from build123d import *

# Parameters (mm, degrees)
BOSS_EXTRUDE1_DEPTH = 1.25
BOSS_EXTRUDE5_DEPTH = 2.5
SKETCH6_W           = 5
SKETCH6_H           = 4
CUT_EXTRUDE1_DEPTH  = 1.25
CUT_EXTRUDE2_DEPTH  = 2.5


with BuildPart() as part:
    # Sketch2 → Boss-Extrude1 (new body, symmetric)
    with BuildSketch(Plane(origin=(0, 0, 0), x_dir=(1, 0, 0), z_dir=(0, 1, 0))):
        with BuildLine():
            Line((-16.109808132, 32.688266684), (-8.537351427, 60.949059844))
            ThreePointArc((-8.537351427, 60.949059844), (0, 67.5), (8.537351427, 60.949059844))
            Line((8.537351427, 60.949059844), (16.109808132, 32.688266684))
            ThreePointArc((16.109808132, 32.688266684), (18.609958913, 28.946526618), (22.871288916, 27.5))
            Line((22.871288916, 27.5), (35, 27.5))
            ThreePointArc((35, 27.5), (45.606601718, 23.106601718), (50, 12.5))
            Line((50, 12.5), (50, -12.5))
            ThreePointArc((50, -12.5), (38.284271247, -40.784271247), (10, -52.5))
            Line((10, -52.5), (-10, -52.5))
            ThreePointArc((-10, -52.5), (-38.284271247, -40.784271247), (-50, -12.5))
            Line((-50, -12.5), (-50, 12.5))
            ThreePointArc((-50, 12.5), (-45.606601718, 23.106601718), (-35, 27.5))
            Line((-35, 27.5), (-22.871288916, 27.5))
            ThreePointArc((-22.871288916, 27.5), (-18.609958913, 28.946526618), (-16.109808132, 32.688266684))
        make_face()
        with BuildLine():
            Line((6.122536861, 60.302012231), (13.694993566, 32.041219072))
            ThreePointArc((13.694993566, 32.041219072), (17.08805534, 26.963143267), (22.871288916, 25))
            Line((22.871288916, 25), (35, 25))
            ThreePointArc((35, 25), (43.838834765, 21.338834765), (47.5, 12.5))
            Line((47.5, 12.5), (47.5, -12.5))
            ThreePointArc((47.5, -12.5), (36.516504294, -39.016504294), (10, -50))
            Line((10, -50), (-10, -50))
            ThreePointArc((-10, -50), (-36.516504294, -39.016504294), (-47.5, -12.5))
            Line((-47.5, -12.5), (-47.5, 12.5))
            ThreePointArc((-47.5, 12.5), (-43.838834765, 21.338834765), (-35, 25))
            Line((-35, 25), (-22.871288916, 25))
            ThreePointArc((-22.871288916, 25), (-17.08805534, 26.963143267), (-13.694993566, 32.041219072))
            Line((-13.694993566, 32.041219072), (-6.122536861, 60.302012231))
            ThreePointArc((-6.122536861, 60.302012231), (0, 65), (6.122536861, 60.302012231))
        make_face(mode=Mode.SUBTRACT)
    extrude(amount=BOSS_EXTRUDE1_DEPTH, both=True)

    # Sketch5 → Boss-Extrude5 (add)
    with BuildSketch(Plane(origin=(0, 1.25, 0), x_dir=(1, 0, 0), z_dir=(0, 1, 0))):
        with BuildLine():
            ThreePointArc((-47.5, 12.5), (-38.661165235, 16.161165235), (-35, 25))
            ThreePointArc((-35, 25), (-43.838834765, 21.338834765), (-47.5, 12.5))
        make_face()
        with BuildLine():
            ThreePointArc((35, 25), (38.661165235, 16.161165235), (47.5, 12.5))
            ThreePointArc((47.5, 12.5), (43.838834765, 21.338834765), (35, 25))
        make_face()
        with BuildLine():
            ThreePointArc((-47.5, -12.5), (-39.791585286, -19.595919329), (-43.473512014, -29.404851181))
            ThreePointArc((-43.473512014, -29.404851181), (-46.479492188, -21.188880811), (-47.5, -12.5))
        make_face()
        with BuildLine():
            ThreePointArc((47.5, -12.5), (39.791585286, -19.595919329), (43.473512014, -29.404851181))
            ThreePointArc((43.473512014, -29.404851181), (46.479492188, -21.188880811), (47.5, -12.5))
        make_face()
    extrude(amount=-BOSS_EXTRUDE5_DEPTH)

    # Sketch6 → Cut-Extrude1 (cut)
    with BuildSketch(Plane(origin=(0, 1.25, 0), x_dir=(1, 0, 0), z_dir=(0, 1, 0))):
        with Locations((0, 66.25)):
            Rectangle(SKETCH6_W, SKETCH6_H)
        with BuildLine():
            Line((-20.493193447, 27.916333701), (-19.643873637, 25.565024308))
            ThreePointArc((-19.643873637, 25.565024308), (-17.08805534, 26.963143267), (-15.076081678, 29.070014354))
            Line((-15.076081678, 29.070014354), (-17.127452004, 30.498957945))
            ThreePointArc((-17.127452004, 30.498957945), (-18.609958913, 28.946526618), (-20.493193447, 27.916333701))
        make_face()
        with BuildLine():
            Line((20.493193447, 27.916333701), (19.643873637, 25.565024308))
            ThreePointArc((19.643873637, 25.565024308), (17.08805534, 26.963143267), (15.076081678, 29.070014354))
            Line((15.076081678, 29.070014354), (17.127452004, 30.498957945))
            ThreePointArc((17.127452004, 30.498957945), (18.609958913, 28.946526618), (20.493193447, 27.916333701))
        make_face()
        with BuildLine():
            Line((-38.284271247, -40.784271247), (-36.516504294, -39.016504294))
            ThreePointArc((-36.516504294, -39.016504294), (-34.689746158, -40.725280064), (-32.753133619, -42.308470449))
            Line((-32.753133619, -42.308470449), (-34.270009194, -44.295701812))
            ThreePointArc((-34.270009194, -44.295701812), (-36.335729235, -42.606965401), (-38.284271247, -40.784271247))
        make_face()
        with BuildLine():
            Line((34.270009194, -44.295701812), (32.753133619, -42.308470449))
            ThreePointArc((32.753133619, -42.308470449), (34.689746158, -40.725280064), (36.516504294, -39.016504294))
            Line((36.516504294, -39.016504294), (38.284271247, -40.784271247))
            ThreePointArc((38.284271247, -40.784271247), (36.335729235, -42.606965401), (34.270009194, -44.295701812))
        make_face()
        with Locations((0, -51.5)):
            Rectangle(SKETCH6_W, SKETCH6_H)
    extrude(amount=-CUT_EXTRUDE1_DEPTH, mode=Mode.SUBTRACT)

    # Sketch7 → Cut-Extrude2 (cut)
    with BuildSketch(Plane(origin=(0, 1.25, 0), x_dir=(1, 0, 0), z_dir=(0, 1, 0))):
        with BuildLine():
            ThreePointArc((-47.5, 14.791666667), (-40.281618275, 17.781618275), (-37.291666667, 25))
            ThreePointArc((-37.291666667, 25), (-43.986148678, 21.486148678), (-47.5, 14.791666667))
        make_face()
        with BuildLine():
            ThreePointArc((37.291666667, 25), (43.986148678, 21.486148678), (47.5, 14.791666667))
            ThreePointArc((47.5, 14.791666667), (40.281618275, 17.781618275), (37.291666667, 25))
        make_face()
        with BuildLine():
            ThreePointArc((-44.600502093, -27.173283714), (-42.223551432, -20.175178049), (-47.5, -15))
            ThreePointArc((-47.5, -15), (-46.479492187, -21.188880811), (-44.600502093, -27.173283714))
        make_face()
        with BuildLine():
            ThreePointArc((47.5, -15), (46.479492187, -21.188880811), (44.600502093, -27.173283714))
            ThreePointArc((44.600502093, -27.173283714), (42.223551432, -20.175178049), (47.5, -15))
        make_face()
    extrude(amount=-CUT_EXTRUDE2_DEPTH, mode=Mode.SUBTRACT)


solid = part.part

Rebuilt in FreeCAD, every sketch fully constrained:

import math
import FreeCAD as App
import Part
import Sketcher

V = App.Vector
Q = App.Units.Quantity

doc = App.newDocument("Part")
body = doc.addObject("PartDesign::Body", "Body")

# Sketch on XZ plane
sketch1 = body.newObject("Sketcher::SketchObject", "Sketch")
sketch1.AttachmentSupport = (doc.getObject("XZ_Plane"), [""])
sketch1.MapMode = "FlatFace"
sketch1.addGeometry([
    Part.LineSegment(V(-8.537351, -60.94906, 0), V(-16.109808, -32.688267, 0)),  # 0
    Part.ArcOfCircle(Part.Circle(V(-22.871289, -34.5, 0), V(0, 0, 1), 7), math.radians(15), math.radians(90)),  # 1
    Part.LineSegment(V(-22.871289, -27.5, 0), V(-35, -27.5, 0)),  # 2
    Part.ArcOfCircle(Part.Circle(V(-35, -12.5, 0), V(0, 0, 1), 15), math.radians(180), math.radians(270)),  # 3
    Part.LineSegment(V(-50, -12.5, 0), V(-50, 12.5, 0)),  # 4
    Part.ArcOfCircle(Part.Circle(V(-10, 12.5, 0), V(0, 0, 1), 40), math.radians(90), math.radians(180)),  # 5
    Part.LineSegment(V(-10, 52.5, 0), V(10, 52.5, 0)),  # 6
    Part.ArcOfCircle(Part.Circle(V(10, 12.5, 0), V(0, 0, 1), 40), math.radians(0), math.radians(90)),  # 7
    Part.LineSegment(V(50, 12.5, 0), V(50, -12.5, 0)),  # 8
    Part.ArcOfCircle(Part.Circle(V(35, -12.5, 0), V(0, 0, 1), 15), math.radians(-90), math.radians(0)),  # 9
    Part.LineSegment(V(35, -27.5, 0), V(22.871289, -27.5, 0)),  # 10
    Part.ArcOfCircle(Part.Circle(V(22.871289, -34.5, 0), V(0, 0, 1), 7), math.radians(90), math.radians(165)),  # 11
    Part.LineSegment(V(16.109808, -32.688267, 0), V(8.537351, -60.94906, 0)),  # 12
    Part.ArcOfCircle(Part.Circle(V(0, -58.661483, 0), V(0, 0, 1), 8.838517), math.radians(-165), math.radians(-15)),  # 13
    Part.LineSegment(V(6.122537, -60.302012, 0), V(13.694994, -32.041219, 0)),  # 14
    Part.ArcOfCircle(Part.Circle(V(22.871289, -34.5, 0), V(0, 0, 1), 9.5), math.radians(90), math.radians(165)),  # 15
    Part.LineSegment(V(22.871289, -25, 0), V(35, -25, 0)),  # 16
    Part.ArcOfCircle(Part.Circle(V(35, -12.5, 0), V(0, 0, 1), 12.5), math.radians(-90), math.radians(0)),  # 17
    Part.LineSegment(V(47.5, -12.5, 0), V(47.5, 12.5, 0)),  # 18
    Part.ArcOfCircle(Part.Circle(V(10, 12.5, 0), V(0, 0, 1), 37.5), math.radians(0), math.radians(90)),  # 19
    Part.LineSegment(V(10, 50, 0), V(-10, 50, 0)),  # 20
    Part.ArcOfCircle(Part.Circle(V(-10, 12.5, 0), V(0, 0, 1), 37.5), math.radians(90), math.radians(180)),  # 21
    Part.LineSegment(V(-47.5, 12.5, 0), V(-47.5, -12.5, 0)),  # 22
    Part.ArcOfCircle(Part.Circle(V(-35, -12.5, 0), V(0, 0, 1), 12.5), math.radians(180), math.radians(270)),  # 23
    Part.LineSegment(V(-35, -25, 0), V(-22.871289, -25, 0)),  # 24
    Part.ArcOfCircle(Part.Circle(V(-22.871289, -34.5, 0), V(0, 0, 1), 9.5), math.radians(15), math.radians(90)),  # 25
    Part.LineSegment(V(-13.694994, -32.041219, 0), V(-6.122537, -60.302012, 0)),  # 26
    Part.ArcOfCircle(Part.Circle(V(0, -58.661483, 0), V(0, 0, 1), 6.338517), math.radians(-165), math.radians(-15)),  # 27
], False)
sketch1.addConstraint([
    Sketcher.Constraint("Tangent", 0, 2, 1, 1),
    Sketcher.Constraint("Tangent", 1, 2, 2, 1),
    Sketcher.Constraint("Tangent", 2, 2, 3, 2),
    Sketcher.Constraint("Tangent", 3, 1, 4, 1),
    Sketcher.Constraint("Tangent", 4, 2, 5, 2),
    Sketcher.Constraint("Tangent", 5, 1, 6, 1),
    Sketcher.Constraint("Tangent", 6, 2, 7, 2),
    Sketcher.Constraint("Tangent", 7, 1, 8, 1),
    Sketcher.Constraint("Tangent", 8, 2, 9, 2),
    Sketcher.Constraint("Tangent", 9, 1, 10, 1),
    Sketcher.Constraint("Tangent", 10, 2, 11, 1),
    Sketcher.Constraint("Tangent", 11, 2, 12, 1),
    Sketcher.Constraint("Tangent", 12, 2, 13, 2),
    Sketcher.Constraint("Tangent", 13, 1, 0, 1),
    Sketcher.Constraint("Tangent", 14, 2, 15, 2),
    Sketcher.Constraint("Tangent", 15, 1, 16, 1),
    Sketcher.Constraint("Tangent", 16, 2, 17, 1),
    Sketcher.Constraint("Tangent", 17, 2, 18, 1),
    Sketcher.Constraint("Tangent", 18, 2, 19, 1),
    Sketcher.Constraint("Tangent", 19, 2, 20, 1),
    Sketcher.Constraint("Tangent", 20, 2, 21, 1),
    Sketcher.Constraint("Tangent", 21, 2, 22, 1),
    Sketcher.Constraint("Tangent", 22, 2, 23, 1),
    Sketcher.Constraint("Tangent", 23, 2, 24, 1),
    Sketcher.Constraint("Tangent", 24, 2, 25, 2),
    Sketcher.Constraint("Tangent", 25, 1, 26, 1),
    Sketcher.Constraint("Tangent", 26, 2, 27, 1),
    Sketcher.Constraint("Tangent", 27, 2, 14, 1),
    Sketcher.Constraint("Horizontal", 2),
    Sketcher.Constraint("Vertical", 4),
    Sketcher.Constraint("Horizontal", 6),
    Sketcher.Constraint("Vertical", 8),
    Sketcher.Constraint("Horizontal", 10),
    Sketcher.Constraint("Horizontal", 16),
    Sketcher.Constraint("Vertical", 18),
    Sketcher.Constraint("Horizontal", 20),
    Sketcher.Constraint("Vertical", 22),
    Sketcher.Constraint("Horizontal", 24),
    Sketcher.Constraint("Coincident", 15, 3, 11, 3),
    Sketcher.Constraint("Coincident", 17, 3, 9, 3),
    Sketcher.Constraint("Coincident", 19, 3, 7, 3),
    Sketcher.Constraint("Coincident", 21, 3, 5, 3),
    Sketcher.Constraint("Coincident", 23, 3, 3, 3),
    Sketcher.Constraint("Coincident", 25, 3, 1, 3),
    Sketcher.Constraint("Coincident", 27, 3, 13, 3),
    Sketcher.Constraint("Equal", 5, 7),
    Sketcher.Constraint("Equal", 3, 9),
    Sketcher.Constraint("Equal", 1, 11),
    Sketcher.Constraint("Symmetric", 3, 1, 7, 1, -1, 1),
    Sketcher.Constraint("Symmetric", 1, 3, 11, 3, -2),
    Sketcher.Constraint("PointOnObject", 13, 3, -2),
    Sketcher.Constraint("Parallel", 12, 14),
    Sketcher.Constraint("Radius", 1, 7.0),
    Sketcher.Constraint("Radius", 3, 15.0),
    Sketcher.Constraint("Radius", 5, 40.0),
    Sketcher.Constraint("Radius", 15, 9.5),
    Sketcher.Constraint("DistanceX", 6, 1, 6, 2, 20.0),
    Sketcher.Constraint("DistanceY", 4, 1, 4, 2, 25.0),
    Sketcher.Constraint("Angle", 0, Q("105 deg")),
    Sketcher.Constraint("Radius", 13, 8.838517),
    Sketcher.Constraint("DistanceX", 2, 2, 2, 1, 12.128711),
])
pad1 = body.newObject("PartDesign::Pad", "Pad")
pad1.Profile = sketch1
pad1.Length = 2.5
pad1.Midplane = True

# Sketch on XZ plane
sketch2 = body.newObject("Sketcher::SketchObject", "Sketch001")
sketch2.AttachmentSupport = (doc.getObject("XZ_Plane"), [""])
sketch2.MapMode = "FlatFace"
sketch2.AttachmentOffset = App.Placement(V(0, 0, -1.25), App.Rotation())
sketch2.addGeometry([
    Part.ArcOfCircle(Part.Circle(V(-47.5, -25, 0), V(0, 0, 1), 12.5), math.radians(0), math.radians(90)),  # 0
    Part.ArcOfCircle(Part.Circle(V(-35, -12.5, 0), V(0, 0, 1), 12.5), math.radians(180), math.radians(270)),  # 1
    Part.ArcOfCircle(Part.Circle(V(47.5, -25, 0), V(0, 0, 1), 12.5), math.radians(90), math.radians(180)),  # 2
    Part.ArcOfCircle(Part.Circle(V(35, -12.5, 0), V(0, 0, 1), 12.5), math.radians(-90), math.radians(0)),  # 3
    Part.ArcOfCircle(Part.Circle(V(-48.911458, 21.76814, 0), V(0, 0, 1), 9.375), math.radians(-81.340877), math.radians(54.546109)),  # 4
    Part.ArcOfCircle(Part.Circle(V(-10, 12.5, 0), V(0, 0, 1), 37.5), math.radians(153.205232), math.radians(180)),  # 5
    Part.ArcOfCircle(Part.Circle(V(48.911458, 21.76814, 0), V(0, 0, 1), 9.375), math.radians(125.453891), math.radians(261.340877)),  # 6
    Part.ArcOfCircle(Part.Circle(V(10, 12.5, 0), V(0, 0, 1), 37.5), math.radians(0), math.radians(26.794768)),  # 7
], False)
sketch2.addConstraint([
    Sketcher.Constraint("Coincident", 0, 1, 1, 2),
    Sketcher.Constraint("Coincident", 1, 1, 0, 2),
    Sketcher.Constraint("Coincident", 2, 1, 3, 2),
    Sketcher.Constraint("Coincident", 3, 1, 2, 2),
    Sketcher.Constraint("Coincident", 4, 1, 5, 2),
    Sketcher.Constraint("Coincident", 5, 1, 4, 2),
    Sketcher.Constraint("Coincident", 6, 1, 7, 2),
    Sketcher.Constraint("Coincident", 7, 1, 6, 2),
    Sketcher.Constraint("Equal", 0, 1),
    Sketcher.Constraint("Equal", 1, 2),
    Sketcher.Constraint("Equal", 2, 3),
    Sketcher.Constraint("Equal", 4, 6),
    Sketcher.Constraint("Equal", 5, 7),
    Sketcher.Constraint("Symmetric", 2, 1, 4, 1, -1, 1),
    Sketcher.Constraint("Symmetric", 1, 1, 7, 1, -1, 1),
    Sketcher.Constraint("Symmetric", 0, 3, 2, 3, -2),
    Sketcher.Constraint("Symmetric", 1, 3, 3, 3, -2),
    Sketcher.Constraint("Symmetric", 5, 1, 6, 1, -2),
    Sketcher.Constraint("Horizontal", 2, 3, 0, 1),
    Sketcher.Constraint("Horizontal", 7, 3, 4, 1),
    Sketcher.Constraint("Vertical", 1, 3, 0, 1),
    Sketcher.Constraint("Radius", 0, 12.5),
    Sketcher.Constraint("Radius", 5, 37.5),
    Sketcher.Constraint("DistanceY", 0, 3, -1, 1, 25.0),
    Sketcher.Constraint("DistanceX", 1, 3, -1, 1, 35.0),
    Sketcher.Constraint("Radius", 4, 9.375),
    Sketcher.Constraint("DistanceX", 4, 3, -1, 1, 48.911458),
])
pad2 = body.newObject("PartDesign::Pad", "Pad001")
pad2.Profile = sketch2
pad2.Length = 2.5

# Sketch on XZ plane
sketch3 = body.newObject("Sketcher::SketchObject", "Sketch002")
sketch3.AttachmentSupport = (doc.getObject("XZ_Plane"), [""])
sketch3.MapMode = "FlatFace"
sketch3.AttachmentOffset = App.Placement(V(0, 0, -1.25), App.Rotation())
sketch3.addGeometry([
    Part.LineSegment(V(-2.5, -68.25, 0), V(-2.5, -64.25, 0)),  # 0
    Part.LineSegment(V(-2.5, -64.25, 0), V(2.5, -64.25, 0)),  # 1
    Part.LineSegment(V(2.5, -64.25, 0), V(2.5, -68.25, 0)),  # 2
    Part.LineSegment(V(2.5, -68.25, 0), V(-2.5, -68.25, 0)),  # 3
    Part.LineSegment(V(-20.493193, -27.916334, 0), V(-19.643874, -25.565024, 0)),  # 4
    Part.ArcOfCircle(Part.Circle(V(-22.871289, -34.5, 0), V(0, 0, 1), 9.5), math.radians(34.860299), math.radians(70.139701)),  # 5
    Part.LineSegment(V(-15.076082, -29.070014, 0), V(-17.127452, -30.498958, 0)),  # 6
    Part.ArcOfCircle(Part.Circle(V(-22.871289, -34.5, 0), V(0, 0, 1), 7), math.radians(34.860299), math.radians(70.139701)),  # 7
    Part.LineSegment(V(19.643874, -25.565024, 0), V(20.493193, -27.916334, 0)),  # 8
    Part.ArcOfCircle(Part.Circle(V(22.871289, -34.5, 0), V(0, 0, 1), 7), math.radians(109.860299), math.radians(145.139701)),  # 9
    Part.LineSegment(V(17.127452, -30.498958, 0), V(15.076082, -29.070014, 0)),  # 10
    Part.ArcOfCircle(Part.Circle(V(22.871289, -34.5, 0), V(0, 0, 1), 9.5), math.radians(109.860299), math.radians(145.139701)),  # 11
    Part.LineSegment(V(-36.516504, 39.016504, 0), V(-38.284271, 40.784271, 0)),  # 12
    Part.ArcOfCircle(Part.Circle(V(-10, 12.5, 0), V(0, 0, 1), 40), math.radians(127.354893), math.radians(135)),  # 13
    Part.LineSegment(V(-34.270009, 44.295702, 0), V(-32.753134, 42.30847, 0)),  # 14
    Part.ArcOfCircle(Part.Circle(V(-10, 12.5, 0), V(0, 0, 1), 37.5), math.radians(127.354893), math.radians(135)),  # 15
    Part.LineSegment(V(32.753134, 42.30847, 0), V(34.270009, 44.295702, 0)),  # 16
    Part.ArcOfCircle(Part.Circle(V(10, 12.5, 0), V(0, 0, 1), 40), math.radians(45), math.radians(52.645107)),  # 17
    Part.LineSegment(V(38.284271, 40.784271, 0), V(36.516504, 39.016504, 0)),  # 18
    Part.ArcOfCircle(Part.Circle(V(10, 12.5, 0), V(0, 0, 1), 37.5), math.radians(45), math.radians(52.645107)),  # 19
    Part.LineSegment(V(-2.5, 49.5, 0), V(-2.5, 53.5, 0)),  # 20
    Part.LineSegment(V(-2.5, 53.5, 0), V(2.5, 53.5, 0)),  # 21
    Part.LineSegment(V(2.5, 53.5, 0), V(2.5, 49.5, 0)),  # 22
    Part.LineSegment(V(2.5, 49.5, 0), V(-2.5, 49.5, 0)),  # 23
], False)
sketch3.addConstraint([
    Sketcher.Constraint("Coincident", 0, 2, 1, 1),
    Sketcher.Constraint("Coincident", 1, 2, 2, 1),
    Sketcher.Constraint("Coincident", 2, 2, 3, 1),
    Sketcher.Constraint("Coincident", 3, 2, 0, 1),
    Sketcher.Constraint("Coincident", 4, 2, 5, 2),
    Sketcher.Constraint("Coincident", 5, 1, 6, 1),
    Sketcher.Constraint("Coincident", 6, 2, 7, 1),
    Sketcher.Constraint("Coincident", 7, 2, 4, 1),
    Sketcher.Constraint("Coincident", 8, 2, 9, 1),
    Sketcher.Constraint("Coincident", 9, 2, 10, 1),
    Sketcher.Constraint("Coincident", 10, 2, 11, 2),
    Sketcher.Constraint("Coincident", 11, 1, 8, 1),
    Sketcher.Constraint("Coincident", 12, 2, 13, 2),
    Sketcher.Constraint("Coincident", 13, 1, 14, 1),
    Sketcher.Constraint("Coincident", 14, 2, 15, 1),
    Sketcher.Constraint("Coincident", 15, 2, 12, 1),
    Sketcher.Constraint("Coincident", 16, 2, 17, 2),
    Sketcher.Constraint("Coincident", 17, 1, 18, 1),
    Sketcher.Constraint("Coincident", 18, 2, 19, 1),
    Sketcher.Constraint("Coincident", 19, 2, 16, 1),
    Sketcher.Constraint("Coincident", 20, 2, 21, 1),
    Sketcher.Constraint("Coincident", 21, 2, 22, 1),
    Sketcher.Constraint("Coincident", 22, 2, 23, 1),
    Sketcher.Constraint("Coincident", 23, 2, 20, 1),
    Sketcher.Constraint("Vertical", 0),
    Sketcher.Constraint("Horizontal", 1),
    Sketcher.Constraint("Vertical", 2),
    Sketcher.Constraint("Horizontal", 3),
    Sketcher.Constraint("Vertical", 20),
    Sketcher.Constraint("Horizontal", 21),
    Sketcher.Constraint("Vertical", 22),
    Sketcher.Constraint("Horizontal", 23),
    Sketcher.Constraint("Coincident", 7, 3, 5, 3),
    Sketcher.Constraint("Coincident", 11, 3, 9, 3),
    Sketcher.Constraint("Coincident", 15, 3, 13, 3),
    Sketcher.Constraint("Coincident", 19, 3, 17, 3),
    Sketcher.Constraint("Equal", 7, 9),
    Sketcher.Constraint("Equal", 5, 11),
    Sketcher.Constraint("Equal", 13, 17),
    Sketcher.Constraint("Equal", 15, 19),
    Sketcher.Constraint("Symmetric", 5, 3, 9, 3, -2),
    Sketcher.Constraint("Symmetric", 13, 3, 17, 3, -2),
    Sketcher.Constraint("Perpendicular", 12, 18),
    Sketcher.Constraint("Horizontal", 7, 2, 8, 2),
    Sketcher.Constraint("Horizontal", 6, 2, 9, 2),
    Sketcher.Constraint("Horizontal", 5, 1, 10, 2),
    Sketcher.Constraint("Horizontal", 4, 2, 11, 1),
    Sketcher.Constraint("Horizontal", 13, 1, 16, 2),
    Sketcher.Constraint("Horizontal", 12, 2, 17, 1),
    Sketcher.Constraint("Horizontal", 15, 2, 18, 2),
    Sketcher.Constraint("Horizontal", 14, 2, 19, 2),
    Sketcher.Constraint("Vertical", 3, 2, 20, 2),
    Sketcher.Constraint("Vertical", 2, 2, 21, 2),
    Sketcher.Constraint("Equal", 2, 20),
    Sketcher.Constraint("Equal", 10, 12),
    Sketcher.Constraint("Radius", 7, 7.0),
    Sketcher.Constraint("Radius", 13, 40.0),
    Sketcher.Constraint("Radius", 5, 9.5),
    Sketcher.Constraint("DistanceX", 1, 1, 1, 2, 5.0),
    Sketcher.Constraint("DistanceY", 0, 1, 0, 2, 4.0),
    Sketcher.Constraint("DistanceX", 13, 3, -1, 1, 10.0),
    Sketcher.Constraint("DistanceY", 5, 3, 13, 3, 47.0),
    Sketcher.Constraint("DistanceY", 5, 3, -1, 1, 34.5),
    Sketcher.Constraint("DistanceX", 0, 2, -1, 1, 2.5),
    Sketcher.Constraint("DistanceY", -1, 1, 20, 2, 53.5),
    Sketcher.Constraint("DistanceY", 0, 2, -1, 1, 64.25),
    Sketcher.Constraint("DistanceY", -1, 1, 13, 1, 44.295702),
    Sketcher.Constraint("DistanceY", 12, 2, 14, 2, 1.524199),
    Sketcher.Constraint("DistanceX", 5, 3, -1, 1, 22.871289),
    Sketcher.Constraint("DistanceX", 5, 1, -1, 1, 15.076082),
    Sketcher.Constraint("DistanceX", 12, 2, -1, 1, 38.284271),
    Sketcher.Constraint("DistanceX", 4, 2, 5, 1, 4.567792),
    Sketcher.Constraint("DistanceX", 6, 2, 5, 1, 2.05137),
    Sketcher.Constraint("DistanceX", 7, 2, 4, 2, 0.84932),
])
pocket1 = body.newObject("PartDesign::Pocket", "Pocket")
pocket1.Profile = sketch3
pocket1.Length = 1.25
pocket1.Reversed = True

# Sketch on XZ plane
sketch4 = body.newObject("Sketcher::SketchObject", "Sketch003")
sketch4.AttachmentSupport = (doc.getObject("XZ_Plane"), [""])
sketch4.MapMode = "FlatFace"
sketch4.AttachmentOffset = App.Placement(V(0, 0, -1.25), App.Rotation())
sketch4.addGeometry([
    Part.ArcOfCircle(Part.Circle(V(-47.5, -25, 0), V(0, 0, 1), 10.208333), math.radians(0), math.radians(90)),  # 0
    Part.ArcOfCircle(Part.Circle(V(-35, -12.5, 0), V(0, 0, 1), 12.708333), math.radians(-169.611142), math.radians(-100.388858)),  # 1
    Part.ArcOfCircle(Part.Circle(V(35, -12.5, 0), V(0, 0, 1), 12.708333), math.radians(-79.611142), math.radians(-10.388858)),  # 2
    Part.ArcOfCircle(Part.Circle(V(47.5, -25, 0), V(0, 0, 1), 10.208333), math.radians(90), math.radians(180)),  # 3
    Part.ArcOfCircle(Part.Circle(V(-48.977523, 21.783875, 0), V(0, 0, 1), 6.942913), math.radians(-77.712911), math.radians(50.918143)),  # 4
    Part.ArcOfCircle(Part.Circle(V(-3.110563, 10.859037, 0), V(0, 0, 1), 44.582168), math.radians(158.534766), math.radians(174.670466)),  # 5
    Part.ArcOfCircle(Part.Circle(V(3.110563, 10.859037, 0), V(0, 0, 1), 44.582168), math.radians(5.329534), math.radians(21.465234)),  # 6
    Part.ArcOfCircle(Part.Circle(V(48.977523, 21.783875, 0), V(0, 0, 1), 6.942913), math.radians(129.081857), math.radians(257.712911)),  # 7
], False)
sketch4.addConstraint([
    Sketcher.Constraint("Coincident", 0, 1, 1, 2),
    Sketcher.Constraint("Coincident", 1, 1, 0, 2),
    Sketcher.Constraint("Coincident", 2, 1, 3, 2),
    Sketcher.Constraint("Coincident", 3, 1, 2, 2),
    Sketcher.Constraint("Coincident", 4, 1, 5, 2),
    Sketcher.Constraint("Coincident", 5, 1, 4, 2),
    Sketcher.Constraint("Coincident", 6, 1, 7, 2),
    Sketcher.Constraint("Coincident", 7, 1, 6, 2),
    Sketcher.Constraint("Equal", 1, 2),
    Sketcher.Constraint("Equal", 0, 3),
    Sketcher.Constraint("Equal", 5, 6),
    Sketcher.Constraint("Equal", 4, 7),
    Sketcher.Constraint("Symmetric", 1, 3, 2, 3, -2),
    Sketcher.Constraint("Symmetric", 0, 3, 3, 3, -2),
    Sketcher.Constraint("Symmetric", 5, 3, 6, 3, -2),
    Sketcher.Constraint("Symmetric", 4, 3, 7, 3, -2),
    Sketcher.Constraint("Horizontal", 3, 3, 0, 1),
    Sketcher.Constraint("Vertical", 0, 3, 1, 1),
    Sketcher.Constraint("Vertical", 1, 1, 4, 1),
    Sketcher.Constraint("DistanceY", 0, 3, -1, 1, 25.0),
    Sketcher.Constraint("DistanceX", 1, 3, -1, 1, 35.0),
    Sketcher.Constraint("DistanceY", -1, 1, 4, 1, 15.0),
    Sketcher.Constraint("DistanceX", 0, 3, 3, 3, 95.0),
    Sketcher.Constraint("Radius", 0, 10.208333),
    Sketcher.Constraint("Radius", 4, 6.942913),
    Sketcher.Constraint("Radius", 5, 44.582168),
    Sketcher.Constraint("DistanceX", 4, 3, 5, 3, 45.86696),
    Sketcher.Constraint("DistanceY", 5, 3, 4, 3, 10.924838),
])
pocket2 = body.newObject("PartDesign::Pocket", "Pocket001")
pocket2.Profile = sketch4
pocket2.Length = 2.5
pocket2.Reversed = True

doc.recompute()
